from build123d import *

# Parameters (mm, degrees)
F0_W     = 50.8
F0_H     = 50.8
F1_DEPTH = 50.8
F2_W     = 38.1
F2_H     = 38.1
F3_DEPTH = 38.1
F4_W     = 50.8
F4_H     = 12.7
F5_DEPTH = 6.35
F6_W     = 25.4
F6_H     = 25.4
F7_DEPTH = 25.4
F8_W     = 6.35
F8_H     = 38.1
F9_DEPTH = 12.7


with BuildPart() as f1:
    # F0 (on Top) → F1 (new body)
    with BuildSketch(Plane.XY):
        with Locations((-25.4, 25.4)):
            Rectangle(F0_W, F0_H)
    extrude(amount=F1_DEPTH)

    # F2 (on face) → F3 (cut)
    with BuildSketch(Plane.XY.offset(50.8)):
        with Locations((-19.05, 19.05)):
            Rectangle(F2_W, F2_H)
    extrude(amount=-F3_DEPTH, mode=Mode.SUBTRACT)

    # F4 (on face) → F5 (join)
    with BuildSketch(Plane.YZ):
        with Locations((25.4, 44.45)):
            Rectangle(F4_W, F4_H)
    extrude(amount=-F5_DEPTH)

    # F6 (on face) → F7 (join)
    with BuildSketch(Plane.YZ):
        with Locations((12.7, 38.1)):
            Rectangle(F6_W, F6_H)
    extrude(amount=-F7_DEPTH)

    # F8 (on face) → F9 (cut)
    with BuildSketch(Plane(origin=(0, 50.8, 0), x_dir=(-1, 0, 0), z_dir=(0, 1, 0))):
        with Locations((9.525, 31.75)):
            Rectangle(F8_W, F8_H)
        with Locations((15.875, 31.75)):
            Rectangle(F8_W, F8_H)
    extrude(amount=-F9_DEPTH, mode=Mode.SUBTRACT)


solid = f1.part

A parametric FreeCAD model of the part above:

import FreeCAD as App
import Part
import Sketcher
from FreeCAD import Vector
Q = App.Units.Quantity

doc = App.newDocument("Part")
body = doc.addObject("PartDesign::Body", "Body")

# Sketch on XY plane
sketch1 = body.newObject("Sketcher::SketchObject", "Sketch")
sketch1.AttachmentSupport = (doc.getObject("XY_Plane"), [""])
sketch1.MapMode = "FlatFace"
sketch1.addGeometry(Part.LineSegment(Vector(-50.8, 50.8, 0), Vector(-50.8, 0, 0)), False)
sketch1.addGeometry(Part.LineSegment(Vector(-50.8, 0, 0), Vector(0, 0, 0)), False)
sketch1.addGeometry(Part.LineSegment(Vector(0, 0, 0), Vector(0, 50.8, 0)), False)
sketch1.addGeometry(Part.LineSegment(Vector(0, 50.8, 0), Vector(-50.8, 50.8, 0)), False)
sketch1.addConstraint(Sketcher.Constraint("Coincident", 0, 2, 1, 1))
sketch1.addConstraint(Sketcher.Constraint("Coincident", 1, 2, 2, 1))
sketch1.addConstraint(Sketcher.Constraint("Coincident", 2, 2, 3, 1))
sketch1.addConstraint(Sketcher.Constraint("Coincident", 3, 2, 0, 1))
sketch1.addConstraint(Sketcher.Constraint("Vertical", 0))
sketch1.addConstraint(Sketcher.Constraint("Horizontal", 1))
sketch1.addConstraint(Sketcher.Constraint("Vertical", 2))
sketch1.addConstraint(Sketcher.Constraint("Horizontal", 3))
sketch1.addConstraint(Sketcher.Constraint("Coincident", 1, 2, -1, 1))
sketch1.addConstraint(Sketcher.Constraint("Equal", 3, 0))
sketch1.addConstraint(Sketcher.Constraint("DistanceX", 1, 1, 1, 2, Q("2 in")))
pad1 = body.newObject("PartDesign::Pad", "Pad")
pad1.Profile = sketch1
pad1.Length = Q("2 in")

# Sketch on XY plane
sketch2 = body.newObject("Sketcher::SketchObject", "Sketch001")
sketch2.AttachmentSupport = (doc.getObject("XY_Plane"), [""])
sketch2.MapMode = "FlatFace"
sketch2.AttachmentOffset = App.Placement(Vector(0, 0, 2 * 25.4), App.Rotation())
sketch2.addGeometry(Part.LineSegment(Vector(-38.1, 38.1, 0), Vector(-38.1, 0, 0)), False)
sketch2.addGeometry(Part.LineSegment(Vector(-38.1, 0, 0), Vector(0, 0, 0)), False)
sketch2.addGeometry(Part.LineSegment(Vector(0, 0, 0), Vector(0, 38.1, 0)), False)
sketch2.addGeometry(Part.LineSegment(Vector(0, 38.1, 0), Vector(-38.1, 38.1, 0)), False)
sketch2.addConstraint(Sketcher.Constraint("Coincident", 0, 2, 1, 1))
sketch2.addConstraint(Sketcher.Constraint("Coincident", 1, 2, 2, 1))
sketch2.addConstraint(Sketcher.Constraint("Coincident", 2, 2, 3, 1))
sketch2.addConstraint(Sketcher.Constraint("Coincident", 3, 2, 0, 1))
sketch2.addConstraint(Sketcher.Constraint("Vertical", 0))
sketch2.addConstraint(Sketcher.Constraint("Horizontal", 1))
sketch2.addConstraint(Sketcher.Constraint("Vertical", 2))
sketch2.addConstraint(Sketcher.Constraint("Horizontal", 3))
sketch2.addConstraint(Sketcher.Constraint("Coincident", 1, 2, -1, 1))
sketch2.addConstraint(Sketcher.Constraint("Equal", 3, 0))
sketch2.addConstraint(Sketcher.Constraint("DistanceX", 1, 1, 1, 2, Q("1.5 in")))
pocket1 = body.newObject("PartDesign::Pocket", "Pocket")
pocket1.Profile = sketch2
pocket1.Length = Q("1.5 in")

# Sketch on YZ plane
sketch3 = body.newObject("Sketcher::SketchObject", "Sketch002")
sketch3.AttachmentSupport = (doc.getObject("YZ_Plane"), [""])
sketch3.MapMode = "FlatFace"
sketch3.addGeometry(Part.LineSegment(Vector(0, 50.8, 0), Vector(0, 38.1, 0)), False)
sketch3.addGeometry(Part.LineSegment(Vector(0, 38.1, 0), Vector(50.8, 38.1, 0)), False)
sketch3.addGeometry(Part.LineSegment(Vector(50.8, 38.1, 0), Vector(50.8, 50.8, 0)), False)
sketch3.addGeometry(Part.LineSegment(Vector(50.8, 50.8, 0), Vector(0, 50.8, 0)), False)
sketch3.addConstraint(Sketcher.Constraint("Coincident", 0, 2, 1, 1))
sketch3.addConstraint(Sketcher.Constraint("Coincident", 1, 2, 2, 1))
sketch3.addConstraint(Sketcher.Constraint("Coincident", 2, 2, 3, 1))
sketch3.addConstraint(Sketcher.Constraint("Coincident", 3, 2, 0, 1))
sketch3.addConstraint(Sketcher.Constraint("Vertical", 0))
sketch3.addConstraint(Sketcher.Constraint("Horizontal", 1))
sketch3.addConstraint(Sketcher.Constraint("Vertical", 2))
sketch3.addConstraint(Sketcher.Constraint("Horizontal", 3))
sketch3.addConstraint(Sketcher.Constraint("PointOnObject", 0, 2, -2))
sketch3.addConstraint(Sketcher.Constraint("DistanceX", 1, 1, 1, 2, Q("2 in")))
sketch3.addConstraint(Sketcher.Constraint("DistanceY", 0, 2, 0, 1, Q("0.5 in")))
sketch3.addConstraint(Sketcher.Constraint("DistanceY", -1, 1, 2, 2, Q("2 in")))
pad2 = body.newObject("PartDesign::Pad", "Pad001")
pad2.Profile = sketch3
pad2.Length = Q("0.25 in")
pad2.Reversed = True

# Sketch on YZ plane
sketch4 = body.newObject("Sketcher::SketchObject", "Sketch003")
sketch4.AttachmentSupport = (doc.getObject("YZ_Plane"), [""])
sketch4.MapMode = "FlatFace"
sketch4.addGeometry(Part.LineSegment(Vector(0, 50.8, 0), Vector(0, 25.4, 0)), False)
sketch4.addGeometry(Part.LineSegment(Vector(0, 25.4, 0), Vector(25.4, 25.4, 0)), False)
sketch4.addGeometry(Part.LineSegment(Vector(25.4, 25.4, 0), Vector(25.4, 50.8, 0)), False)
sketch4.addGeometry(Part.LineSegment(Vector(25.4, 50.8, 0), Vector(0, 50.8, 0)), False)
sketch4.addConstraint(Sketcher.Constraint("Coincident", 0, 2, 1, 1))
sketch4.addConstraint(Sketcher.Constraint("Coincident", 1, 2, 2, 1))
sketch4.addConstraint(Sketcher.Constraint("Coincident", 2, 2, 3, 1))
sketch4.addConstraint(Sketcher.Constraint("Coincident", 3, 2, 0, 1))
sketch4.addConstraint(Sketcher.Constraint("Vertical", 0))
sketch4.addConstraint(Sketcher.Constraint("Horizontal", 1))
sketch4.addConstraint(Sketcher.Constraint("Vertical", 2))
sketch4.addConstraint(Sketcher.Constraint("Horizontal", 3))
sketch4.addConstraint(Sketcher.Constraint("PointOnObject", 0, 2, -2))
sketch4.addConstraint(Sketcher.Constraint("Equal", 3, 0))
sketch4.addConstraint(Sketcher.Constraint("DistanceX", 1, 1, 1, 2, Q("1 in")))
sketch4.addConstraint(Sketcher.Constraint("DistanceY", -1, 1, 0, 2, Q("1 in")))
pad3 = body.newObject("PartDesign::Pad", "Pad002")
pad3.Profile = sketch4
pad3.Length = Q("1 in")
pad3.Reversed = True

# Sketch on XZ plane
sketch5 = body.newObject("Sketcher::SketchObject", "Sketch004")
sketch5.AttachmentSupport = (doc.getObject("XZ_Plane"), [""])
sketch5.MapMode = "FlatFace"
sketch5.AttachmentOffset = App.Placement(Vector(0, 0, -2 * 25.4), App.Rotation())
sketch5.addGeometry(Part.LineSegment(Vector(-6.35, 50.8, 0), Vector(-6.35, 12.7, 0)), False)
sketch5.addGeometry(Part.LineSegment(Vector(-6.35, 12.7, 0), Vector(-19.05, 12.7, 0)), False)
sketch5.addGeometry(Part.LineSegment(Vector(-19.05, 12.7, 0), Vector(-19.05, 50.8, 0)), False)
sketch5.addGeometry(Part.LineSegment(Vector(-19.05, 50.8, 0), Vector(-6.35, 50.8, 0)), False)
sketch5.addConstraint(Sketcher.Constraint("Coincident", 0, 2, 1, 1))
sketch5.addConstraint(Sketcher.Constraint("Coincident", 1, 2, 2, 1))
sketch5.addConstraint(Sketcher.Constraint("Coincident", 2, 2, 3, 1))
sketch5.addConstraint(Sketcher.Constraint("Coincident", 3, 2, 0, 1))
sketch5.addConstraint(Sketcher.Constraint("Vertical", 0))
sketch5.addConstraint(Sketcher.Constraint("Horizontal", 1))
sketch5.addConstraint(Sketcher.Constraint("Vertical", 2))
sketch5.addConstraint(Sketcher.Constraint("Horizontal", 3))
sketch5.addConstraint(Sketcher.Constraint("DistanceX", 1, 2, 1, 1, Q("0.5 in")))
sketch5.addConstraint(Sketcher.Constraint("DistanceY", 0, 2, 0, 1, Q("1.5 in")))
sketch5.addConstraint(Sketcher.Constraint("DistanceY", -1, 1, 2, 2, Q("2 in")))
sketch5.addConstraint(Sketcher.Constraint("DistanceX", 0, 2, -1, 1, Q("0.25 in")))
pocket2 = body.newObject("PartDesign::Pocket", "Pocket001")
pocket2.Profile = sketch5
pocket2.Length = Q("0.5 in")
pocket2.Reversed = True

doc.recompute()
